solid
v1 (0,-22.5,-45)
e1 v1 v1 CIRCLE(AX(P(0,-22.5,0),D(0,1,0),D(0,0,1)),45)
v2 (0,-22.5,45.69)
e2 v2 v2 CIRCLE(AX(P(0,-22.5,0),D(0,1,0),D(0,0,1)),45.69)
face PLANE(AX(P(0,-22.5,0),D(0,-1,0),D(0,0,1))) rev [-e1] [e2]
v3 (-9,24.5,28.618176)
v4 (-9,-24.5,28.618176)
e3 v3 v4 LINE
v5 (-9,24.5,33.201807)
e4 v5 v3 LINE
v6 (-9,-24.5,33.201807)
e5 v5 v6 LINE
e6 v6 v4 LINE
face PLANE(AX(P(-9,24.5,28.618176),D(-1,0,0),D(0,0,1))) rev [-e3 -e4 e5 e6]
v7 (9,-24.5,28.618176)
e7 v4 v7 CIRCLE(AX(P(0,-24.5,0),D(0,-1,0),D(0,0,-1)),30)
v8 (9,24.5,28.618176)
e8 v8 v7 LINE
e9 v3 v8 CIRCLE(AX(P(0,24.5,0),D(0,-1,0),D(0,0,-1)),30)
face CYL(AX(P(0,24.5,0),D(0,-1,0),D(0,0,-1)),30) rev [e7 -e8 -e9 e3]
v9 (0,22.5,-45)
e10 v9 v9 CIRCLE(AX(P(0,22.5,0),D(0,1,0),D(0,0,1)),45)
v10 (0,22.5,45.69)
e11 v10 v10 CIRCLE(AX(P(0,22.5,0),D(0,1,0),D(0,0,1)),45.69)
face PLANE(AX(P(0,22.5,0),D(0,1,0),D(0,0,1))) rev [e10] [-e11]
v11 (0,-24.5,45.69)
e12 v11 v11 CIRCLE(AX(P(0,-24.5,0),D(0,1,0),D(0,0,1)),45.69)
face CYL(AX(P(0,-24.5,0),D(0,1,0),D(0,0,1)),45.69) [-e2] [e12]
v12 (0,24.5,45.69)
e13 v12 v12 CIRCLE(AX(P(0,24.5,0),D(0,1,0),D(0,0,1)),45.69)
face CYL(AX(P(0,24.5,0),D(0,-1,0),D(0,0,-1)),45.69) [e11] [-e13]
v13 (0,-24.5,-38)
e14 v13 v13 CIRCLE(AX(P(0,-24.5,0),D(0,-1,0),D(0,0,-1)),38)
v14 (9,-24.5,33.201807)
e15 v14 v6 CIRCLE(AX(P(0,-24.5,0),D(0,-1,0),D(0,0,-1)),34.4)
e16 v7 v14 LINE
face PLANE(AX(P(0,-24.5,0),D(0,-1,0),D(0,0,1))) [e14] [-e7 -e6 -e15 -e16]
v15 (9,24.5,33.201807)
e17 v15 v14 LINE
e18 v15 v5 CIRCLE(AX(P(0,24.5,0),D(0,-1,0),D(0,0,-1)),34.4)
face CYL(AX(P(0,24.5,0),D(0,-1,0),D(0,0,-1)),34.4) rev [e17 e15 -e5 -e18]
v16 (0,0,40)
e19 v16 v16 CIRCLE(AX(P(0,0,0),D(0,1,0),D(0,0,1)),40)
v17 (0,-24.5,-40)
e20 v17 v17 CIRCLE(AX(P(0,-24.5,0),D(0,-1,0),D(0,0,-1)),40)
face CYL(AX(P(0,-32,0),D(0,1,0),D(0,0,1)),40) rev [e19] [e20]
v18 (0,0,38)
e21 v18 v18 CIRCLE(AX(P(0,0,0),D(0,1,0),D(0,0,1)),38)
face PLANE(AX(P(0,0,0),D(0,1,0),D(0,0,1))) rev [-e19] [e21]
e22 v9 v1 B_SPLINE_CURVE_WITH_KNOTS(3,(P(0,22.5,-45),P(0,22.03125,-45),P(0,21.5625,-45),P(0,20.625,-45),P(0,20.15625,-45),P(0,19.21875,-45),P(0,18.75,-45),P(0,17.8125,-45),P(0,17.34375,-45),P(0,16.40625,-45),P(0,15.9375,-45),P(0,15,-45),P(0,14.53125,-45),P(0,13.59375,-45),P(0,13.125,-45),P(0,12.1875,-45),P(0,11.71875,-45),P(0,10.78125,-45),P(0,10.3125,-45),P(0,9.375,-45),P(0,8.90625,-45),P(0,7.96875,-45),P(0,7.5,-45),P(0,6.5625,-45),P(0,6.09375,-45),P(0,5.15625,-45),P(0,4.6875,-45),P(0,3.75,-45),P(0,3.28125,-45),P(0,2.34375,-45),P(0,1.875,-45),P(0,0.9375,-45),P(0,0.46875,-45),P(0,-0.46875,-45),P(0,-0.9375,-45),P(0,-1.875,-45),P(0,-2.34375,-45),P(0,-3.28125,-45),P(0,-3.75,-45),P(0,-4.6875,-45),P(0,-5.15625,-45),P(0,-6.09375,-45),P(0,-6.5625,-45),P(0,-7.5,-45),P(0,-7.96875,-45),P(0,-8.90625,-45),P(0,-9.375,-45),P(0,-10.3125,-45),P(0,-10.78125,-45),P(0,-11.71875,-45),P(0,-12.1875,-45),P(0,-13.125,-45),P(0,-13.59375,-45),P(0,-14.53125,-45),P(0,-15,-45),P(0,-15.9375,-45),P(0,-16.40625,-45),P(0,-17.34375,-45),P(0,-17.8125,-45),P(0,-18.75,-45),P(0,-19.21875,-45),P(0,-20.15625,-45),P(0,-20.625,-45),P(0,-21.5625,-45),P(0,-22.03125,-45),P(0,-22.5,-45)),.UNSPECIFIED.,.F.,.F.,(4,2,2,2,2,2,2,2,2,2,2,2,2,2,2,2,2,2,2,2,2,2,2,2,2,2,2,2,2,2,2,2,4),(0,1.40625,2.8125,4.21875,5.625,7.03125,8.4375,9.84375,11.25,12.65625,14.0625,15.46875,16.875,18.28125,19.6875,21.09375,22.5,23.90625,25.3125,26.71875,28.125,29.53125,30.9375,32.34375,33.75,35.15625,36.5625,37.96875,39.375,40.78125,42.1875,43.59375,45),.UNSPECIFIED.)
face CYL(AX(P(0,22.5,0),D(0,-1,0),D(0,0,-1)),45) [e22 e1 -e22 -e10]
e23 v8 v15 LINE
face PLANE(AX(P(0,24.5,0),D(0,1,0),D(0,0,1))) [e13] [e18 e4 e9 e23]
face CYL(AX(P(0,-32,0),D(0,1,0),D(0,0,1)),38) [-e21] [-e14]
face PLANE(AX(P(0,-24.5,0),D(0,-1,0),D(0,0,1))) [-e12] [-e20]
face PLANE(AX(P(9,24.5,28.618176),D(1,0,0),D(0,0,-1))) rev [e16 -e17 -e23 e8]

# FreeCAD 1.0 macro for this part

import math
import FreeCAD as App
import Part
import Sketcher

V = App.Vector

doc = App.newDocument("Part")
body = doc.addObject("PartDesign::Body", "Body")

sketch1 = doc.addObject("Sketcher::SketchObject", "Sketch")
body.addObject(sketch1)
sketch1.AttachmentSupport = (doc.XZ_Plane, [""])
sketch1.MapMode = "FlatFace"
sketch1.addGeometry(Part.Circle(V(0, 0, 0), V(0, 0, 1), 45), False)
sketch1.addConstraint([
    Sketcher.Constraint("Coincident", 0, 3, -1, 1),
    Sketcher.Constraint("Diameter", 0, 90.0),
])
pad1 = doc.addObject("PartDesign::Pad", "Pad")
body.addObject(pad1)
pad1.Profile = sketch1
pad1.Length = 45
pad1.Midplane = True

sketch2 = doc.addObject("Sketcher::SketchObject", "Sketch001")
body.addObject(sketch2)
sketch2.AttachmentSupport = (doc.XZ_Plane, [""])
sketch2.MapMode = "FlatFace"
sketch2.AttachmentOffset = App.Placement(V(0, 0, -22.5), App.Rotation())
sketch2.addGeometry(Part.Circle(V(0, 0, 0), V(0, 0, 1), 46), False)
sketch2.addConstraint([
    Sketcher.Constraint("Coincident", 0, 3, -1, 1),
    Sketcher.Constraint("Diameter", 0, 91.38),
])
pad2 = doc.addObject("PartDesign::Pad", "Pad001")
body.addObject(pad2)
pad2.Profile = sketch2
pad2.Length = 2
pad2.Reversed = True
doc.recompute()

mirrored = doc.addObject("PartDesign::Mirrored", "Mirrored")
body.addObject(mirrored)
mirrored.Originals = [pad2]
mirrored.MirrorPlane = (doc.XZ_Plane, [""])
body.Tip = mirrored

sketch3 = doc.addObject("Sketcher::SketchObject", "Sketch002")
body.addObject(sketch3)
sketch3.AttachmentSupport = (doc.XZ_Plane, [""])
sketch3.MapMode = "FlatFace"
sketch3.addGeometry([
    Part.Circle(V(0, 0, 0), V(0, 0, 1), 40),
    Part.Circle(V(0, 0, 0), V(0, 0, 1), 38),
], False)
sketch3.addConstraint([
    Sketcher.Constraint("Coincident", 0, 3, -1, 1),
    Sketcher.Constraint("Coincident", 1, 3, -1, 1),
    Sketcher.Constraint("Diameter", 0, 80.0),
    Sketcher.Constraint("Diameter", 1, 76.0),
])
pocket1 = doc.addObject("PartDesign::Pocket", "Pocket")
body.addObject(pocket1)
pocket1.Profile = sketch3
pocket1.Length = 32
pocket1.Reversed = True

sketch4 = doc.addObject("Sketcher::SketchObject", "Sketch003")
body.addObject(sketch4)
sketch4.AttachmentSupport = (doc.XZ_Plane, [""])
sketch4.MapMode = "FlatFace"
sketch4.AttachmentOffset = App.Placement(V(0, 0, 24.5), App.Rotation())
sketch4.addGeometry(Part.Circle(V(0, 0, 0), V(0, 0, 1), 30), False)
sketch4.addConstraint([
    Sketcher.Constraint("Coincident", 0, 3, -1, 1),
    Sketcher.Constraint("Diameter", 0, 60.0),
])
pocket2 = doc.addObject("PartDesign::Pocket", "Pocket001")
body.addObject(pocket2)
pocket2.Profile = sketch4
pocket2.Type = "ThroughAll"

sketch5 = doc.addObject("Sketcher::SketchObject", "Sketch004")
body.addObject(sketch5)
sketch5.AttachmentSupport = (doc.XZ_Plane, [""])
sketch5.MapMode = "FlatFace"
sketch5.AttachmentOffset = App.Placement(V(0, 0, 24.5), App.Rotation())
sketch5.addGeometry([
    Part.LineSegment(V(-9, 33.2, 0), V(-9, 28.6, 0)),
    Part.ArcOfCircle(Part.Circle(V(0, 0, 0), V(0, 0, 1), 30), math.radians(73), math.radians(107)),
    Part.LineSegment(V(9, 28.6, 0), V(9, 33.2, 0)),
    Part.ArcOfCircle(Part.Circle(V(0, 0, 0), V(0, 0, 1), 34.4), math.radians(75), math.radians(105)),
], False)
sketch5.addConstraint([
    Sketcher.Constraint("Coincident", 0, 2, 1, 2),
    Sketcher.Constraint("Coincident", 1, 1, 2, 1),
    Sketcher.Constraint("Coincident", 2, 2, 3, 1),
    Sketcher.Constraint("Coincident", 3, 2, 0, 1),
    Sketcher.Constraint("Vertical", 0),
    Sketcher.Constraint("Vertical", 2),
    Sketcher.Constraint("Coincident", 1, 3, -1, 1),
    Sketcher.Constraint("Coincident", 3, 3, -1, 1),
    Sketcher.Constraint("Horizontal", 0, 2, 1, 1),
    Sketcher.Constraint("Radius", 1, 30.0),
    Sketcher.Constraint("Radius", 3, 34.4),
    Sketcher.Constraint("DistanceX", 0, 2, -1, 1, 9.0),
])
pocket3 = doc.addObject("PartDesign::Pocket", "Pocket002")
body.addObject(pocket3)
pocket3.Profile = sketch5
pocket3.Type = "ThroughAll"

doc.recompute()
